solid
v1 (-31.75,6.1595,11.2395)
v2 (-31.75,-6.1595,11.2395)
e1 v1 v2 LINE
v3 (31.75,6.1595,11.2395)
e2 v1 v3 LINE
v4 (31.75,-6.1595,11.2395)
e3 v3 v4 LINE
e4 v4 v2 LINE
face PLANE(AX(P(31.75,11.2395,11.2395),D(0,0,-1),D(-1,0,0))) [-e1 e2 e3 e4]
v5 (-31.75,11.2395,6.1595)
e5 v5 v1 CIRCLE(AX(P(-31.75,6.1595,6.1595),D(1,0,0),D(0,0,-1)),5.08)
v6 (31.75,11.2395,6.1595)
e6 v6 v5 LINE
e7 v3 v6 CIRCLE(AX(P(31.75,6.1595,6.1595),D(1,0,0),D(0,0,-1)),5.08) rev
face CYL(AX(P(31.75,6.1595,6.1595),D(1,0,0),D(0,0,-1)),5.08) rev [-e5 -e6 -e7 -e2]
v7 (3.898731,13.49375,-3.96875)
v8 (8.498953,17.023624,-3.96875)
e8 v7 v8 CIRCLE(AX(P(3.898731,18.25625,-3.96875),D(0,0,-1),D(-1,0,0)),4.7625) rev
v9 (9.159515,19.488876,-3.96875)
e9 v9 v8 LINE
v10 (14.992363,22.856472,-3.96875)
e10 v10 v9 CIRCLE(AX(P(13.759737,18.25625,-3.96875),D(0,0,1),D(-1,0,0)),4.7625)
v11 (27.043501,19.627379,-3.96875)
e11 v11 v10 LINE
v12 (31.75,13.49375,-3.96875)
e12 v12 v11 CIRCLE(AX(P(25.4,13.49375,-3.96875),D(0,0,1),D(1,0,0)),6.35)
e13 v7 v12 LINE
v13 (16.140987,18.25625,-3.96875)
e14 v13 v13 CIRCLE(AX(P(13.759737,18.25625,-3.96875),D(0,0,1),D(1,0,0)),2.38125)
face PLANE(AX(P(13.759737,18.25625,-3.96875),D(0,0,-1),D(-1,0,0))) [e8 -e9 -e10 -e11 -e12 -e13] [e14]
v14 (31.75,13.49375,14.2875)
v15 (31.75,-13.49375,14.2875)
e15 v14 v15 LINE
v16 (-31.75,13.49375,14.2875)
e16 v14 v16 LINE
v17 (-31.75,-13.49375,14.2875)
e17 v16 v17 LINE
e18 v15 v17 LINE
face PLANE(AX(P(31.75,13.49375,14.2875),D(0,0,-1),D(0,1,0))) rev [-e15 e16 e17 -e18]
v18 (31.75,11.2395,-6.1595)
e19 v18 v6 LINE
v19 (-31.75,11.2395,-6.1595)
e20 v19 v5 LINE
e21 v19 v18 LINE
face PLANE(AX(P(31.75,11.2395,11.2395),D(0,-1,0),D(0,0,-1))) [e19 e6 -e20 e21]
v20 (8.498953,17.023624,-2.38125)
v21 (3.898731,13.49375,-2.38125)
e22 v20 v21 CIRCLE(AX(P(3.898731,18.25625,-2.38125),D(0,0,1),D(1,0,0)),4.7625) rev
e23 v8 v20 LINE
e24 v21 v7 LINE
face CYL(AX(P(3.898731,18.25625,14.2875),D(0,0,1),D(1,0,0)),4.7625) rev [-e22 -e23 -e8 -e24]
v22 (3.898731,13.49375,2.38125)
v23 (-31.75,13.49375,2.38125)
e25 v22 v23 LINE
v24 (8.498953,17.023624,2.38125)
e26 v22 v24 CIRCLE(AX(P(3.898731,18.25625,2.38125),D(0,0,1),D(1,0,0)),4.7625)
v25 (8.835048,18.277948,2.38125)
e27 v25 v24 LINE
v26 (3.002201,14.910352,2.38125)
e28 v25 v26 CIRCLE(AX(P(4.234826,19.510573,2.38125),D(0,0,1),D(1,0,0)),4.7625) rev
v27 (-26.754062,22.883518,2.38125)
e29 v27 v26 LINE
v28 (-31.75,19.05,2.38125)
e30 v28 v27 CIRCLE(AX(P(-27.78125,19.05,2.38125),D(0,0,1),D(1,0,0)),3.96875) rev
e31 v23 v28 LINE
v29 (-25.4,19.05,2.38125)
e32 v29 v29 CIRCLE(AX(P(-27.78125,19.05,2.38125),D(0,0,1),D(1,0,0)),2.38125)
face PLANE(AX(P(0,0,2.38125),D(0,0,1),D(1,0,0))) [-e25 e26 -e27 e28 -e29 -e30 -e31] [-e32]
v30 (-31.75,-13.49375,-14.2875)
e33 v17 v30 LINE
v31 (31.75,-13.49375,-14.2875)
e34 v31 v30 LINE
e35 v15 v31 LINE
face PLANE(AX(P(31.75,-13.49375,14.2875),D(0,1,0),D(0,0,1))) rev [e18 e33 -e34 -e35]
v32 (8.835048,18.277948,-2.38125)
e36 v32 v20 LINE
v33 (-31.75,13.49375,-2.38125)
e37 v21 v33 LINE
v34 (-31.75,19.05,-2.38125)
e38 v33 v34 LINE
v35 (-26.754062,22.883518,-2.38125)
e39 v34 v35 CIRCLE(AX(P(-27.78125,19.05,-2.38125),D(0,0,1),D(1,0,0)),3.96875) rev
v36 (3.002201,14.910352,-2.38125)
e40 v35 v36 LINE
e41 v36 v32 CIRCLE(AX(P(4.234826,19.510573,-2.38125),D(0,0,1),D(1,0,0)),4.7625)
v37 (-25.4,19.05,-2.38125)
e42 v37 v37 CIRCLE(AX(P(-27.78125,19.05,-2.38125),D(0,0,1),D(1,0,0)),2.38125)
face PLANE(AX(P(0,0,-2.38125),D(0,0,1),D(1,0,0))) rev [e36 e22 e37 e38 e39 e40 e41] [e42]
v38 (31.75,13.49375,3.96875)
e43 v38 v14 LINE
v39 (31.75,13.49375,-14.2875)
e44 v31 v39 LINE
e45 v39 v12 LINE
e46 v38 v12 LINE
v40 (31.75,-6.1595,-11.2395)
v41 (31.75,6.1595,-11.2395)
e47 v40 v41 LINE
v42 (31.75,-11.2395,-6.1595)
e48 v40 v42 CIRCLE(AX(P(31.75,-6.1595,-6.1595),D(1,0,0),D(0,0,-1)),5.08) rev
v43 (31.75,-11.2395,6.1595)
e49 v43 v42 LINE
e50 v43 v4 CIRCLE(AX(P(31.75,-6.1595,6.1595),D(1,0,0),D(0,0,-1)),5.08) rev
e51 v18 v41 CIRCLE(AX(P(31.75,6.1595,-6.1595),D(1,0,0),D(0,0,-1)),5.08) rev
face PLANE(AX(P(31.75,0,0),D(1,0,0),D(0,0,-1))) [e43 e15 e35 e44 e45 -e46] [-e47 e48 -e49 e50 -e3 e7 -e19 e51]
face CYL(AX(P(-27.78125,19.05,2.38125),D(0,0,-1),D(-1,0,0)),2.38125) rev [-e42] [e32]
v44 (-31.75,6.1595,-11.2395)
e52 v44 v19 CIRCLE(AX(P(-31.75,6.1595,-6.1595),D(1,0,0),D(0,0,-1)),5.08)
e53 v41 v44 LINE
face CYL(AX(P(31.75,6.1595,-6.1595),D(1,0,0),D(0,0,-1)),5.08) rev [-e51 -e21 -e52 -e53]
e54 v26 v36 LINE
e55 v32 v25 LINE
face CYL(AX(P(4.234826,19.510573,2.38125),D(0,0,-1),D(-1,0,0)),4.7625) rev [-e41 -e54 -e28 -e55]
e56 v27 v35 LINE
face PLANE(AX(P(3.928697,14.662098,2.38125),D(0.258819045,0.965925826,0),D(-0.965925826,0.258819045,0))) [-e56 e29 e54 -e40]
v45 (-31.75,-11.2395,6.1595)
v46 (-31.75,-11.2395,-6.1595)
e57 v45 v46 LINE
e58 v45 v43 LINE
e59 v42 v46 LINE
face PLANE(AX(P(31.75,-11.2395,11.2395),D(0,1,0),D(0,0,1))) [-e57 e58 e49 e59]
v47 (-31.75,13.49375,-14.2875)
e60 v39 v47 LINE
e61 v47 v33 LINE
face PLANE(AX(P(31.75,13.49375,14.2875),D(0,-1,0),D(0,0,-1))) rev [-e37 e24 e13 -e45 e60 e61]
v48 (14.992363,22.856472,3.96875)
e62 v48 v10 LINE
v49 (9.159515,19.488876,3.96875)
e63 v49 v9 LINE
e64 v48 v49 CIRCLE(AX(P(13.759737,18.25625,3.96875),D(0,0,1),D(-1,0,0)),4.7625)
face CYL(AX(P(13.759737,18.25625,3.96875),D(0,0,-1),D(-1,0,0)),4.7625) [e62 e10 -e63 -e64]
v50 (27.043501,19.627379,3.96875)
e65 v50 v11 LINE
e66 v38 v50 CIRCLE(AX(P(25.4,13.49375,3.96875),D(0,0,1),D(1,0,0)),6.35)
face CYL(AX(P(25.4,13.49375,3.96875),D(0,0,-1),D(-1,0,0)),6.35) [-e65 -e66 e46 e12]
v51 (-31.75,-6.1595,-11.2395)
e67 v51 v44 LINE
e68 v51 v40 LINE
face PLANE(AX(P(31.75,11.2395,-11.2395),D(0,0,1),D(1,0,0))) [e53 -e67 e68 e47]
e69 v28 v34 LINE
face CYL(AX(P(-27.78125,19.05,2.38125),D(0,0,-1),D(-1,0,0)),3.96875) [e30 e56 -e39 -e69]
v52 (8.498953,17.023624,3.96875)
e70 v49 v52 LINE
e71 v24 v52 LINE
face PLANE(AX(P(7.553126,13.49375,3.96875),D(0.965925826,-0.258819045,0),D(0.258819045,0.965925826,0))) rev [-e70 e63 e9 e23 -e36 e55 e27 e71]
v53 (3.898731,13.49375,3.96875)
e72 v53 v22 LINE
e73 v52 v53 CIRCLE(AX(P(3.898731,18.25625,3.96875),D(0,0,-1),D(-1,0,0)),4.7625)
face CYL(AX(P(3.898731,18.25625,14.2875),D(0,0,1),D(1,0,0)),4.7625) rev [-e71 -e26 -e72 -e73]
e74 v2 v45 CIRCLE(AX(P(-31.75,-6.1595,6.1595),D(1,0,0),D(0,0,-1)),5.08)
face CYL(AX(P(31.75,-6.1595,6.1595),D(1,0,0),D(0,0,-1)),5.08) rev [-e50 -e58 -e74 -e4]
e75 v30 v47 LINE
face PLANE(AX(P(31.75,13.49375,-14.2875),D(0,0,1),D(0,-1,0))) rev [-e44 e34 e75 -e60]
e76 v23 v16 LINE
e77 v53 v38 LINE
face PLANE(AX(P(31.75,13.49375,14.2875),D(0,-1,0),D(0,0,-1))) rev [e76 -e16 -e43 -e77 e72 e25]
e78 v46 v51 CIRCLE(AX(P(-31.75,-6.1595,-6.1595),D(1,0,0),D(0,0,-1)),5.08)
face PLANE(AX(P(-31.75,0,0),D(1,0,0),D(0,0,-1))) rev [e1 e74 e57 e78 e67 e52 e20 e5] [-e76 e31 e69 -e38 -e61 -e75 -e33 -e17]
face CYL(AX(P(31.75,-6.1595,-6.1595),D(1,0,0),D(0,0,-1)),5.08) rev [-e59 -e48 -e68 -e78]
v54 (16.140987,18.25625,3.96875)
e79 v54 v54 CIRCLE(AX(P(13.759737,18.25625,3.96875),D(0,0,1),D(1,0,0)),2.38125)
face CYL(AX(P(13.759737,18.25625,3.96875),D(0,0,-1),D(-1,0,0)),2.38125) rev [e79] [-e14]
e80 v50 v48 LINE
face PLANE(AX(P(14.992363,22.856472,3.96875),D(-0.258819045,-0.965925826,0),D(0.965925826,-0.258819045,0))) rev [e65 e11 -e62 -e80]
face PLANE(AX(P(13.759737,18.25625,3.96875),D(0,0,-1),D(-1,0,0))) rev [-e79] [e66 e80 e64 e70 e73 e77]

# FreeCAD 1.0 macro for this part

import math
import FreeCAD as App
import Part
import Sketcher
Q = App.Units.Quantity


def edges_at(feature, points):
    """Names of the edges that pass closest to the given points."""
    edges = feature.Shape.Edges
    near = lambda p: min(range(len(edges)), key=lambda i: edges[i].distToShape(Part.Vertex(*p))[0])
    return sorted({f"Edge{near(p) + 1}" for p in points})


def add_polygon(sketch, points):
    """Adds a closed chain of lines whose ends are joined by coincident constraints."""
    first, n = sketch.GeometryCount, len(points)
    for a, b in zip(points, points[1:] + points[:1]):
        sketch.addGeometry(Part.LineSegment(App.Vector(*a, 0), App.Vector(*b, 0)), False)
    for i in range(n):
        sketch.addConstraint(Sketcher.Constraint("Coincident", first + i, 2, first + (i + 1) % n, 1))

doc = App.newDocument("Part")
body = doc.addObject("PartDesign::Body", "Body")

# Sketch on YZ plane
sketch1 = body.newObject("Sketcher::SketchObject", "Sketch")
sketch1.AttachmentSupport = (doc.getObject("YZ_Plane"), [""])
sketch1.MapMode = "FlatFace"
add_polygon(sketch1, [(13, 14), (-13, 14), (-13, -14), (13, -14)])  # lines 0-3
add_polygon(sketch1, [(-11, -11), (-11, 11), (11, 11), (11, -11)])  # lines 4-7
sketch1.addConstraint(Sketcher.Constraint("Horizontal", 0))
sketch1.addConstraint(Sketcher.Constraint("Vertical", 1))
sketch1.addConstraint(Sketcher.Constraint("Horizontal", 2))
sketch1.addConstraint(Sketcher.Constraint("Vertical", 3))
sketch1.addConstraint(Sketcher.Constraint("Vertical", 4))
sketch1.addConstraint(Sketcher.Constraint("Horizontal", 5))
sketch1.addConstraint(Sketcher.Constraint("Vertical", 6))
sketch1.addConstraint(Sketcher.Constraint("Horizontal", 7))
sketch1.addConstraint(Sketcher.Constraint("Symmetric", 0, 2, 2, 2, -1, 1))
sketch1.addConstraint(Sketcher.Constraint("Symmetric", 4, 2, 6, 2, -1, 1))
sketch1.addConstraint(Sketcher.Constraint("Equal", 7, 4))
sketch1.addConstraint(Sketcher.Constraint("DistanceX", 0, 2, 0, 1, Q("1.0625 in")))
sketch1.addConstraint(Sketcher.Constraint("DistanceX", 5, 1, 5, 2, Q("0.885 in")))
sketch1.addConstraint(Sketcher.Constraint("DistanceY", 1, 2, 1, 1, Q("1.125 in")))
pad1 = body.newObject("PartDesign::Pad", "Pad")
pad1.Profile = sketch1
pad1.Length = Q("2.5 in")
pad1.Midplane = True
doc.recompute()

fillet = body.newObject("PartDesign::Fillet", "Fillet")
fillet.Base = (pad1, edges_at(pad1, [
    (0, -11.239, -11.239),
    (0, 11.239, -11.239),
    (0, 11.239, 11.239),
    (0, -11.239, 11.239),
]))
fillet.Radius = Q("0.2 in")

# Sketch on XY plane
sketch2 = body.newObject("Sketcher::SketchObject", "Sketch001")
sketch2.AttachmentSupport = (doc.getObject("XY_Plane"), [""])
sketch2.MapMode = "FlatFace"
sketch2.addGeometry(Part.LineSegment(App.Vector(9.2, 19.5, 0), App.Vector(7.6, 13.5, 0)), False)
sketch2.addGeometry(Part.LineSegment(App.Vector(7.6, 13.5, 0), App.Vector(31.8, 13.5, 0)), False)
sketch2.addGeometry(Part.ArcOfCircle(Part.Circle(App.Vector(25.4, 13.5, 0), App.Vector(0, 0, 1), 6.3), math.radians(0), math.radians(75)), False)
sketch2.addGeometry(Part.LineSegment(App.Vector(27, 19.6, 0), App.Vector(15, 22.9, 0)), False)
sketch2.addGeometry(Part.ArcOfCircle(Part.Circle(App.Vector(13.8, 18.3, 0), App.Vector(0, 0, 1), 4.8), math.radians(75), math.radians(165)), False)
sketch2.addGeometry(Part.Circle(App.Vector(13.8, 18.3, 0), App.Vector(0, 0, 1), 2.4), False)
sketch2.addConstraint(Sketcher.Constraint("Coincident", 0, 2, 1, 1))
sketch2.addConstraint(Sketcher.Constraint("Coincident", 1, 2, 2, 1))
sketch2.addConstraint(Sketcher.Constraint("Tangent", 2, 2, 3, 1))
sketch2.addConstraint(Sketcher.Constraint("Tangent", 3, 2, 4, 1))
sketch2.addConstraint(Sketcher.Constraint("Tangent", 4, 2, 0, 1))
sketch2.addConstraint(Sketcher.Constraint("Horizontal", 1))
sketch2.addConstraint(Sketcher.Constraint("Coincident", 5, 3, 4, 3))
sketch2.addConstraint(Sketcher.Constraint("Perpendicular", 0, 3))
sketch2.addConstraint(Sketcher.Constraint("Horizontal", 2, 3, 0, 2))
sketch2.addConstraint(Sketcher.Constraint("Radius", 2, Q("0.25 in")))
sketch2.addConstraint(Sketcher.Constraint("Diameter", 5, Q("0.1875 in")))
sketch2.addConstraint(Sketcher.Constraint("DistanceX", -1, 1, 2, 3, Q("1 in")))
sketch2.addConstraint(Sketcher.Constraint("Angle", 0, Q("-105 deg")))
sketch2.addConstraint(Sketcher.Constraint("Radius", 4, Q("0.1875 in")))
sketch2.addConstraint(Sketcher.Constraint("DistanceY", -1, 1, 2, 3, Q("0.53125 in")))
sketch2.addConstraint(Sketcher.Constraint("DistanceY", -1, 1, 4, 3, Q("0.71875 in")))
pad2 = body.newObject("PartDesign::Pad", "Pad001")
pad2.Profile = sketch2
pad2.Length = Q("0.3125 in")
pad2.Midplane = True

# Sketch on XY plane
sketch3 = body.newObject("Sketcher::SketchObject", "Sketch002")
sketch3.AttachmentSupport = (doc.getObject("XY_Plane"), [""])
sketch3.MapMode = "FlatFace"
sketch3.addGeometry(Part.ArcOfCircle(Part.Circle(App.Vector(-27.78, 19.05, 0), App.Vector(0, 0, 1), 3.97), math.radians(75), math.radians(180)), False)
sketch3.addGeometry(Part.LineSegment(App.Vector(-31.75, 19.05, 0), App.Vector(-31.75, 13.49, 0)), False)
sketch3.addGeometry(Part.LineSegment(App.Vector(-31.75, 13.49, 0), App.Vector(7.55, 13.49, 0)), False)
sketch3.addGeometry(Part.LineSegment(App.Vector(7.55, 13.49, 0), App.Vector(7.6, 13.68, 0)), False)
sketch3.addGeometry(Part.LineSegment(App.Vector(7.6, 13.68, 0), App.Vector(-26.75, 22.88, 0)), False)
sketch3.addGeometry(Part.Circle(App.Vector(-27.78, 19.05, 0), App.Vector(0, 0, 1), 2.38), False)
sketch3.addConstraint(Sketcher.Constraint("Tangent", 0, 2, 1, 1))
sketch3.addConstraint(Sketcher.Constraint("Coincident", 1, 2, 2, 1))
sketch3.addConstraint(Sketcher.Constraint("Coincident", 2, 2, 3, 1))
sketch3.addConstraint(Sketcher.Constraint("Coincident", 3, 2, 4, 1))
sketch3.addConstraint(Sketcher.Constraint("Tangent", 4, 2, 0, 1))
sketch3.addConstraint(Sketcher.Constraint("Vertical", 1))
sketch3.addConstraint(Sketcher.Constraint("Horizontal", 2))
sketch3.addConstraint(Sketcher.Constraint("Coincident", 5, 3, 0, 3))
sketch3.addConstraint(Sketcher.Constraint("Perpendicular", 3, 4))
sketch3.addConstraint(Sketcher.Constraint("Diameter", 5, Q("0.1875 in")))
sketch3.addConstraint(Sketcher.Constraint("Angle", 3, Q("75 deg")))
sketch3.addConstraint(Sketcher.Constraint("Radius", 0, Q("0.15625 in")))
sketch3.addConstraint(Sketcher.Constraint("DistanceY", 1, 2, 1, 1, Q("0.21875 in")))
sketch3.addConstraint(Sketcher.Constraint("DistanceY", -1, 1, 0, 3, Q("0.75 in")))
sketch3.addConstraint(Sketcher.Constraint("DistanceX", 0, 2, -1, 1, Q("1.25 in")))
sketch3.addConstraint(Sketcher.Constraint("Distance", 4, 35.56845))
pad3 = body.newObject("PartDesign::Pad", "Pad002")
pad3.Profile = sketch3
pad3.Length = Q("0.1875 in")
pad3.Midplane = True
doc.recompute()

fillet2 = body.newObject("PartDesign::Fillet", "Fillet001")
fillet2.Base = (pad3, edges_at(pad3, [(7.602, 13.678, 0)]))
fillet2.Radius = Q("0.1875 in")
doc.recompute()

fillet3 = body.newObject("PartDesign::Fillet", "Fillet002")
fillet3.Base = (fillet2, edges_at(fillet2, [(7.553, 13.494, 3.175), (7.553, 13.494, -3.175)]))
fillet3.Radius = Q("0.1875 in")

doc.recompute()
